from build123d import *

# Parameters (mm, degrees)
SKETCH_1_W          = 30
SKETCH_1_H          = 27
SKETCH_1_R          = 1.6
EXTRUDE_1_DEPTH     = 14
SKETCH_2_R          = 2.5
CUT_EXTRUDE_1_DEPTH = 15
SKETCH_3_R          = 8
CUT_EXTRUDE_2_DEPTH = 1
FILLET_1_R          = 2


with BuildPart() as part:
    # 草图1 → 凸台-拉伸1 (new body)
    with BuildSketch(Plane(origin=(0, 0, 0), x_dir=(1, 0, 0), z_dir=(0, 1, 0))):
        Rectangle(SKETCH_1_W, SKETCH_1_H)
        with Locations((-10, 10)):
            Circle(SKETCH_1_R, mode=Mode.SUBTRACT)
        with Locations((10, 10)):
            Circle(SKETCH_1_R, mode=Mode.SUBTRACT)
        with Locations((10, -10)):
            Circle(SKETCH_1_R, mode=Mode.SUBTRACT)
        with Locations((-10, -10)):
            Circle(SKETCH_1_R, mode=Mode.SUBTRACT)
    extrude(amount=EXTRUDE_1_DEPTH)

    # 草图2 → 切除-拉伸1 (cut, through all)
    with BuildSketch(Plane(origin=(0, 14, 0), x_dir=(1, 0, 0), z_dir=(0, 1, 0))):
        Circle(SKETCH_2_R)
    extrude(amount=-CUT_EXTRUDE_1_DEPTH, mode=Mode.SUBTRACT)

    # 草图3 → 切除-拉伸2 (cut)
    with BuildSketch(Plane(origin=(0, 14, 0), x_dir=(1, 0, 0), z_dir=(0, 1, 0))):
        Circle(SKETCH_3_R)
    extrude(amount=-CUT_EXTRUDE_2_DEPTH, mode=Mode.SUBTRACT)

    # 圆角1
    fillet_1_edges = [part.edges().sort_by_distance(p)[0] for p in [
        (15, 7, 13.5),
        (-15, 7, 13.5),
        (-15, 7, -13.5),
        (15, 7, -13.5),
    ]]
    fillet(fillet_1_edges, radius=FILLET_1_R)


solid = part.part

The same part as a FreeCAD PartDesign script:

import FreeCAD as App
import Part
import Sketcher
from FreeCAD import Vector


def edges_at(feature, points):
    """Names of the edges that pass closest to the given points."""
    edges = feature.Shape.Edges
    near = lambda p: min(range(len(edges)), key=lambda i: edges[i].distToShape(Part.Vertex(*p))[0])
    return sorted({f"Edge{near(p) + 1}" for p in points})


def add_polygon(sketch, points):
    """Adds a closed chain of lines whose ends are joined by coincident constraints."""
    first, n = sketch.GeometryCount, len(points)
    for a, b in zip(points, points[1:] + points[:1]):
        sketch.addGeometry(Part.LineSegment(App.Vector(*a, 0), App.Vector(*b, 0)), False)
    for i in range(n):
        sketch.addConstraint(Sketcher.Constraint("Coincident", first + i, 2, first + (i + 1) % n, 1))

doc = App.newDocument("Part")
body = doc.addObject("PartDesign::Body", "Body")

# Sketch on XZ plane
sketch1 = body.newObject("Sketcher::SketchObject", "Sketch")
sketch1.AttachmentSupport = (doc.getObject("XZ_Plane"), [""])
sketch1.MapMode = "FlatFace"
add_polygon(sketch1, [(-15, -13.5), (-15, 13.5), (15, 13.5), (15, -13.5)])  # lines 0-3
sketch1.addGeometry(Part.Circle(Vector(-10, 10, 0), Vector(0, 0, 1), 1.6), False)  # 4
sketch1.addGeometry(Part.Circle(Vector(10, 10, 0), Vector(0, 0, 1), 1.6), False)  # 5
sketch1.addGeometry(Part.Circle(Vector(-10, -10, 0), Vector(0, 0, 1), 1.6), False)  # 6
sketch1.addGeometry(Part.Circle(Vector(10, -10, 0), Vector(0, 0, 1), 1.6), False)  # 7
sketch1.addConstraint([
    Sketcher.Constraint("Vertical", 0),
    Sketcher.Constraint("Horizontal", 1),
    Sketcher.Constraint("Vertical", 2),
    Sketcher.Constraint("Horizontal", 3),
    Sketcher.Constraint("Equal", 4, 5),
    Sketcher.Constraint("Equal", 5, 6),
    Sketcher.Constraint("Equal", 6, 7),
    Sketcher.Constraint("Symmetric", 5, 3, 6, 3, -1, 1),
    Sketcher.Constraint("Symmetric", 4, 3, 7, 3, -1, 1),
    Sketcher.Constraint("Symmetric", 0, 2, 2, 2, -1, 1),
    Sketcher.Constraint("Symmetric", 4, 3, 5, 3, -2),
    Sketcher.Constraint("Diameter", 4, 3.2),
    Sketcher.Constraint("DistanceX", 1, 1, 1, 2, 30.0),
    Sketcher.Constraint("DistanceY", 0, 1, 0, 2, 27.0),
    Sketcher.Constraint("DistanceX", 4, 3, -1, 1, 10.0),
    Sketcher.Constraint("DistanceY", -1, 1, 4, 3, 10.0),
])
pad1 = body.newObject("PartDesign::Pad", "Pad")
pad1.Profile = sketch1
pad1.Length = 14
pad1.Reversed = True

# Sketch on XZ plane
sketch2 = body.newObject("Sketcher::SketchObject", "Sketch001")
sketch2.AttachmentSupport = (doc.getObject("XZ_Plane"), [""])
sketch2.MapMode = "FlatFace"
sketch2.AttachmentOffset = App.Placement(Vector(0, 0, -14), App.Rotation())
sketch2.addGeometry(Part.Circle(Vector(0, 0, 0), Vector(0, 0, 1), 2.5), False)
sketch2.addConstraint([
    Sketcher.Constraint("Coincident", 0, 3, -1, 1),
    Sketcher.Constraint("Diameter", 0, 5.0),
])
pocket1 = body.newObject("PartDesign::Pocket", "Pocket")
pocket1.Profile = sketch2
pocket1.Type = "ThroughAll"
pocket1.Reversed = True

# Sketch on XZ plane
sketch3 = body.newObject("Sketcher::SketchObject", "Sketch002")
sketch3.AttachmentSupport = (doc.getObject("XZ_Plane"), [""])
sketch3.MapMode = "FlatFace"
sketch3.AttachmentOffset = App.Placement(Vector(0, 0, -14), App.Rotation())
sketch3.addGeometry(Part.Circle(Vector(0, 0, 0), Vector(0, 0, 1), 8), False)
sketch3.addConstraint([
    Sketcher.Constraint("Coincident", 0, 3, -1, 1),
    Sketcher.Constraint("Diameter", 0, 16.0),
])
pocket2 = body.newObject("PartDesign::Pocket", "Pocket001")
pocket2.Profile = sketch3
pocket2.Length = 1
pocket2.Reversed = True
doc.recompute()

fillet = body.newObject("PartDesign::Fillet", "Fillet")
fillet.Base = (pocket2, edges_at(pocket2, [
    (15, 7, 13.5),
    (-15, 7, 13.5),
    (-15, 7, -13.5),
    (15, 7, -13.5),
]))
fillet.Radius = 2

doc.recompute()
